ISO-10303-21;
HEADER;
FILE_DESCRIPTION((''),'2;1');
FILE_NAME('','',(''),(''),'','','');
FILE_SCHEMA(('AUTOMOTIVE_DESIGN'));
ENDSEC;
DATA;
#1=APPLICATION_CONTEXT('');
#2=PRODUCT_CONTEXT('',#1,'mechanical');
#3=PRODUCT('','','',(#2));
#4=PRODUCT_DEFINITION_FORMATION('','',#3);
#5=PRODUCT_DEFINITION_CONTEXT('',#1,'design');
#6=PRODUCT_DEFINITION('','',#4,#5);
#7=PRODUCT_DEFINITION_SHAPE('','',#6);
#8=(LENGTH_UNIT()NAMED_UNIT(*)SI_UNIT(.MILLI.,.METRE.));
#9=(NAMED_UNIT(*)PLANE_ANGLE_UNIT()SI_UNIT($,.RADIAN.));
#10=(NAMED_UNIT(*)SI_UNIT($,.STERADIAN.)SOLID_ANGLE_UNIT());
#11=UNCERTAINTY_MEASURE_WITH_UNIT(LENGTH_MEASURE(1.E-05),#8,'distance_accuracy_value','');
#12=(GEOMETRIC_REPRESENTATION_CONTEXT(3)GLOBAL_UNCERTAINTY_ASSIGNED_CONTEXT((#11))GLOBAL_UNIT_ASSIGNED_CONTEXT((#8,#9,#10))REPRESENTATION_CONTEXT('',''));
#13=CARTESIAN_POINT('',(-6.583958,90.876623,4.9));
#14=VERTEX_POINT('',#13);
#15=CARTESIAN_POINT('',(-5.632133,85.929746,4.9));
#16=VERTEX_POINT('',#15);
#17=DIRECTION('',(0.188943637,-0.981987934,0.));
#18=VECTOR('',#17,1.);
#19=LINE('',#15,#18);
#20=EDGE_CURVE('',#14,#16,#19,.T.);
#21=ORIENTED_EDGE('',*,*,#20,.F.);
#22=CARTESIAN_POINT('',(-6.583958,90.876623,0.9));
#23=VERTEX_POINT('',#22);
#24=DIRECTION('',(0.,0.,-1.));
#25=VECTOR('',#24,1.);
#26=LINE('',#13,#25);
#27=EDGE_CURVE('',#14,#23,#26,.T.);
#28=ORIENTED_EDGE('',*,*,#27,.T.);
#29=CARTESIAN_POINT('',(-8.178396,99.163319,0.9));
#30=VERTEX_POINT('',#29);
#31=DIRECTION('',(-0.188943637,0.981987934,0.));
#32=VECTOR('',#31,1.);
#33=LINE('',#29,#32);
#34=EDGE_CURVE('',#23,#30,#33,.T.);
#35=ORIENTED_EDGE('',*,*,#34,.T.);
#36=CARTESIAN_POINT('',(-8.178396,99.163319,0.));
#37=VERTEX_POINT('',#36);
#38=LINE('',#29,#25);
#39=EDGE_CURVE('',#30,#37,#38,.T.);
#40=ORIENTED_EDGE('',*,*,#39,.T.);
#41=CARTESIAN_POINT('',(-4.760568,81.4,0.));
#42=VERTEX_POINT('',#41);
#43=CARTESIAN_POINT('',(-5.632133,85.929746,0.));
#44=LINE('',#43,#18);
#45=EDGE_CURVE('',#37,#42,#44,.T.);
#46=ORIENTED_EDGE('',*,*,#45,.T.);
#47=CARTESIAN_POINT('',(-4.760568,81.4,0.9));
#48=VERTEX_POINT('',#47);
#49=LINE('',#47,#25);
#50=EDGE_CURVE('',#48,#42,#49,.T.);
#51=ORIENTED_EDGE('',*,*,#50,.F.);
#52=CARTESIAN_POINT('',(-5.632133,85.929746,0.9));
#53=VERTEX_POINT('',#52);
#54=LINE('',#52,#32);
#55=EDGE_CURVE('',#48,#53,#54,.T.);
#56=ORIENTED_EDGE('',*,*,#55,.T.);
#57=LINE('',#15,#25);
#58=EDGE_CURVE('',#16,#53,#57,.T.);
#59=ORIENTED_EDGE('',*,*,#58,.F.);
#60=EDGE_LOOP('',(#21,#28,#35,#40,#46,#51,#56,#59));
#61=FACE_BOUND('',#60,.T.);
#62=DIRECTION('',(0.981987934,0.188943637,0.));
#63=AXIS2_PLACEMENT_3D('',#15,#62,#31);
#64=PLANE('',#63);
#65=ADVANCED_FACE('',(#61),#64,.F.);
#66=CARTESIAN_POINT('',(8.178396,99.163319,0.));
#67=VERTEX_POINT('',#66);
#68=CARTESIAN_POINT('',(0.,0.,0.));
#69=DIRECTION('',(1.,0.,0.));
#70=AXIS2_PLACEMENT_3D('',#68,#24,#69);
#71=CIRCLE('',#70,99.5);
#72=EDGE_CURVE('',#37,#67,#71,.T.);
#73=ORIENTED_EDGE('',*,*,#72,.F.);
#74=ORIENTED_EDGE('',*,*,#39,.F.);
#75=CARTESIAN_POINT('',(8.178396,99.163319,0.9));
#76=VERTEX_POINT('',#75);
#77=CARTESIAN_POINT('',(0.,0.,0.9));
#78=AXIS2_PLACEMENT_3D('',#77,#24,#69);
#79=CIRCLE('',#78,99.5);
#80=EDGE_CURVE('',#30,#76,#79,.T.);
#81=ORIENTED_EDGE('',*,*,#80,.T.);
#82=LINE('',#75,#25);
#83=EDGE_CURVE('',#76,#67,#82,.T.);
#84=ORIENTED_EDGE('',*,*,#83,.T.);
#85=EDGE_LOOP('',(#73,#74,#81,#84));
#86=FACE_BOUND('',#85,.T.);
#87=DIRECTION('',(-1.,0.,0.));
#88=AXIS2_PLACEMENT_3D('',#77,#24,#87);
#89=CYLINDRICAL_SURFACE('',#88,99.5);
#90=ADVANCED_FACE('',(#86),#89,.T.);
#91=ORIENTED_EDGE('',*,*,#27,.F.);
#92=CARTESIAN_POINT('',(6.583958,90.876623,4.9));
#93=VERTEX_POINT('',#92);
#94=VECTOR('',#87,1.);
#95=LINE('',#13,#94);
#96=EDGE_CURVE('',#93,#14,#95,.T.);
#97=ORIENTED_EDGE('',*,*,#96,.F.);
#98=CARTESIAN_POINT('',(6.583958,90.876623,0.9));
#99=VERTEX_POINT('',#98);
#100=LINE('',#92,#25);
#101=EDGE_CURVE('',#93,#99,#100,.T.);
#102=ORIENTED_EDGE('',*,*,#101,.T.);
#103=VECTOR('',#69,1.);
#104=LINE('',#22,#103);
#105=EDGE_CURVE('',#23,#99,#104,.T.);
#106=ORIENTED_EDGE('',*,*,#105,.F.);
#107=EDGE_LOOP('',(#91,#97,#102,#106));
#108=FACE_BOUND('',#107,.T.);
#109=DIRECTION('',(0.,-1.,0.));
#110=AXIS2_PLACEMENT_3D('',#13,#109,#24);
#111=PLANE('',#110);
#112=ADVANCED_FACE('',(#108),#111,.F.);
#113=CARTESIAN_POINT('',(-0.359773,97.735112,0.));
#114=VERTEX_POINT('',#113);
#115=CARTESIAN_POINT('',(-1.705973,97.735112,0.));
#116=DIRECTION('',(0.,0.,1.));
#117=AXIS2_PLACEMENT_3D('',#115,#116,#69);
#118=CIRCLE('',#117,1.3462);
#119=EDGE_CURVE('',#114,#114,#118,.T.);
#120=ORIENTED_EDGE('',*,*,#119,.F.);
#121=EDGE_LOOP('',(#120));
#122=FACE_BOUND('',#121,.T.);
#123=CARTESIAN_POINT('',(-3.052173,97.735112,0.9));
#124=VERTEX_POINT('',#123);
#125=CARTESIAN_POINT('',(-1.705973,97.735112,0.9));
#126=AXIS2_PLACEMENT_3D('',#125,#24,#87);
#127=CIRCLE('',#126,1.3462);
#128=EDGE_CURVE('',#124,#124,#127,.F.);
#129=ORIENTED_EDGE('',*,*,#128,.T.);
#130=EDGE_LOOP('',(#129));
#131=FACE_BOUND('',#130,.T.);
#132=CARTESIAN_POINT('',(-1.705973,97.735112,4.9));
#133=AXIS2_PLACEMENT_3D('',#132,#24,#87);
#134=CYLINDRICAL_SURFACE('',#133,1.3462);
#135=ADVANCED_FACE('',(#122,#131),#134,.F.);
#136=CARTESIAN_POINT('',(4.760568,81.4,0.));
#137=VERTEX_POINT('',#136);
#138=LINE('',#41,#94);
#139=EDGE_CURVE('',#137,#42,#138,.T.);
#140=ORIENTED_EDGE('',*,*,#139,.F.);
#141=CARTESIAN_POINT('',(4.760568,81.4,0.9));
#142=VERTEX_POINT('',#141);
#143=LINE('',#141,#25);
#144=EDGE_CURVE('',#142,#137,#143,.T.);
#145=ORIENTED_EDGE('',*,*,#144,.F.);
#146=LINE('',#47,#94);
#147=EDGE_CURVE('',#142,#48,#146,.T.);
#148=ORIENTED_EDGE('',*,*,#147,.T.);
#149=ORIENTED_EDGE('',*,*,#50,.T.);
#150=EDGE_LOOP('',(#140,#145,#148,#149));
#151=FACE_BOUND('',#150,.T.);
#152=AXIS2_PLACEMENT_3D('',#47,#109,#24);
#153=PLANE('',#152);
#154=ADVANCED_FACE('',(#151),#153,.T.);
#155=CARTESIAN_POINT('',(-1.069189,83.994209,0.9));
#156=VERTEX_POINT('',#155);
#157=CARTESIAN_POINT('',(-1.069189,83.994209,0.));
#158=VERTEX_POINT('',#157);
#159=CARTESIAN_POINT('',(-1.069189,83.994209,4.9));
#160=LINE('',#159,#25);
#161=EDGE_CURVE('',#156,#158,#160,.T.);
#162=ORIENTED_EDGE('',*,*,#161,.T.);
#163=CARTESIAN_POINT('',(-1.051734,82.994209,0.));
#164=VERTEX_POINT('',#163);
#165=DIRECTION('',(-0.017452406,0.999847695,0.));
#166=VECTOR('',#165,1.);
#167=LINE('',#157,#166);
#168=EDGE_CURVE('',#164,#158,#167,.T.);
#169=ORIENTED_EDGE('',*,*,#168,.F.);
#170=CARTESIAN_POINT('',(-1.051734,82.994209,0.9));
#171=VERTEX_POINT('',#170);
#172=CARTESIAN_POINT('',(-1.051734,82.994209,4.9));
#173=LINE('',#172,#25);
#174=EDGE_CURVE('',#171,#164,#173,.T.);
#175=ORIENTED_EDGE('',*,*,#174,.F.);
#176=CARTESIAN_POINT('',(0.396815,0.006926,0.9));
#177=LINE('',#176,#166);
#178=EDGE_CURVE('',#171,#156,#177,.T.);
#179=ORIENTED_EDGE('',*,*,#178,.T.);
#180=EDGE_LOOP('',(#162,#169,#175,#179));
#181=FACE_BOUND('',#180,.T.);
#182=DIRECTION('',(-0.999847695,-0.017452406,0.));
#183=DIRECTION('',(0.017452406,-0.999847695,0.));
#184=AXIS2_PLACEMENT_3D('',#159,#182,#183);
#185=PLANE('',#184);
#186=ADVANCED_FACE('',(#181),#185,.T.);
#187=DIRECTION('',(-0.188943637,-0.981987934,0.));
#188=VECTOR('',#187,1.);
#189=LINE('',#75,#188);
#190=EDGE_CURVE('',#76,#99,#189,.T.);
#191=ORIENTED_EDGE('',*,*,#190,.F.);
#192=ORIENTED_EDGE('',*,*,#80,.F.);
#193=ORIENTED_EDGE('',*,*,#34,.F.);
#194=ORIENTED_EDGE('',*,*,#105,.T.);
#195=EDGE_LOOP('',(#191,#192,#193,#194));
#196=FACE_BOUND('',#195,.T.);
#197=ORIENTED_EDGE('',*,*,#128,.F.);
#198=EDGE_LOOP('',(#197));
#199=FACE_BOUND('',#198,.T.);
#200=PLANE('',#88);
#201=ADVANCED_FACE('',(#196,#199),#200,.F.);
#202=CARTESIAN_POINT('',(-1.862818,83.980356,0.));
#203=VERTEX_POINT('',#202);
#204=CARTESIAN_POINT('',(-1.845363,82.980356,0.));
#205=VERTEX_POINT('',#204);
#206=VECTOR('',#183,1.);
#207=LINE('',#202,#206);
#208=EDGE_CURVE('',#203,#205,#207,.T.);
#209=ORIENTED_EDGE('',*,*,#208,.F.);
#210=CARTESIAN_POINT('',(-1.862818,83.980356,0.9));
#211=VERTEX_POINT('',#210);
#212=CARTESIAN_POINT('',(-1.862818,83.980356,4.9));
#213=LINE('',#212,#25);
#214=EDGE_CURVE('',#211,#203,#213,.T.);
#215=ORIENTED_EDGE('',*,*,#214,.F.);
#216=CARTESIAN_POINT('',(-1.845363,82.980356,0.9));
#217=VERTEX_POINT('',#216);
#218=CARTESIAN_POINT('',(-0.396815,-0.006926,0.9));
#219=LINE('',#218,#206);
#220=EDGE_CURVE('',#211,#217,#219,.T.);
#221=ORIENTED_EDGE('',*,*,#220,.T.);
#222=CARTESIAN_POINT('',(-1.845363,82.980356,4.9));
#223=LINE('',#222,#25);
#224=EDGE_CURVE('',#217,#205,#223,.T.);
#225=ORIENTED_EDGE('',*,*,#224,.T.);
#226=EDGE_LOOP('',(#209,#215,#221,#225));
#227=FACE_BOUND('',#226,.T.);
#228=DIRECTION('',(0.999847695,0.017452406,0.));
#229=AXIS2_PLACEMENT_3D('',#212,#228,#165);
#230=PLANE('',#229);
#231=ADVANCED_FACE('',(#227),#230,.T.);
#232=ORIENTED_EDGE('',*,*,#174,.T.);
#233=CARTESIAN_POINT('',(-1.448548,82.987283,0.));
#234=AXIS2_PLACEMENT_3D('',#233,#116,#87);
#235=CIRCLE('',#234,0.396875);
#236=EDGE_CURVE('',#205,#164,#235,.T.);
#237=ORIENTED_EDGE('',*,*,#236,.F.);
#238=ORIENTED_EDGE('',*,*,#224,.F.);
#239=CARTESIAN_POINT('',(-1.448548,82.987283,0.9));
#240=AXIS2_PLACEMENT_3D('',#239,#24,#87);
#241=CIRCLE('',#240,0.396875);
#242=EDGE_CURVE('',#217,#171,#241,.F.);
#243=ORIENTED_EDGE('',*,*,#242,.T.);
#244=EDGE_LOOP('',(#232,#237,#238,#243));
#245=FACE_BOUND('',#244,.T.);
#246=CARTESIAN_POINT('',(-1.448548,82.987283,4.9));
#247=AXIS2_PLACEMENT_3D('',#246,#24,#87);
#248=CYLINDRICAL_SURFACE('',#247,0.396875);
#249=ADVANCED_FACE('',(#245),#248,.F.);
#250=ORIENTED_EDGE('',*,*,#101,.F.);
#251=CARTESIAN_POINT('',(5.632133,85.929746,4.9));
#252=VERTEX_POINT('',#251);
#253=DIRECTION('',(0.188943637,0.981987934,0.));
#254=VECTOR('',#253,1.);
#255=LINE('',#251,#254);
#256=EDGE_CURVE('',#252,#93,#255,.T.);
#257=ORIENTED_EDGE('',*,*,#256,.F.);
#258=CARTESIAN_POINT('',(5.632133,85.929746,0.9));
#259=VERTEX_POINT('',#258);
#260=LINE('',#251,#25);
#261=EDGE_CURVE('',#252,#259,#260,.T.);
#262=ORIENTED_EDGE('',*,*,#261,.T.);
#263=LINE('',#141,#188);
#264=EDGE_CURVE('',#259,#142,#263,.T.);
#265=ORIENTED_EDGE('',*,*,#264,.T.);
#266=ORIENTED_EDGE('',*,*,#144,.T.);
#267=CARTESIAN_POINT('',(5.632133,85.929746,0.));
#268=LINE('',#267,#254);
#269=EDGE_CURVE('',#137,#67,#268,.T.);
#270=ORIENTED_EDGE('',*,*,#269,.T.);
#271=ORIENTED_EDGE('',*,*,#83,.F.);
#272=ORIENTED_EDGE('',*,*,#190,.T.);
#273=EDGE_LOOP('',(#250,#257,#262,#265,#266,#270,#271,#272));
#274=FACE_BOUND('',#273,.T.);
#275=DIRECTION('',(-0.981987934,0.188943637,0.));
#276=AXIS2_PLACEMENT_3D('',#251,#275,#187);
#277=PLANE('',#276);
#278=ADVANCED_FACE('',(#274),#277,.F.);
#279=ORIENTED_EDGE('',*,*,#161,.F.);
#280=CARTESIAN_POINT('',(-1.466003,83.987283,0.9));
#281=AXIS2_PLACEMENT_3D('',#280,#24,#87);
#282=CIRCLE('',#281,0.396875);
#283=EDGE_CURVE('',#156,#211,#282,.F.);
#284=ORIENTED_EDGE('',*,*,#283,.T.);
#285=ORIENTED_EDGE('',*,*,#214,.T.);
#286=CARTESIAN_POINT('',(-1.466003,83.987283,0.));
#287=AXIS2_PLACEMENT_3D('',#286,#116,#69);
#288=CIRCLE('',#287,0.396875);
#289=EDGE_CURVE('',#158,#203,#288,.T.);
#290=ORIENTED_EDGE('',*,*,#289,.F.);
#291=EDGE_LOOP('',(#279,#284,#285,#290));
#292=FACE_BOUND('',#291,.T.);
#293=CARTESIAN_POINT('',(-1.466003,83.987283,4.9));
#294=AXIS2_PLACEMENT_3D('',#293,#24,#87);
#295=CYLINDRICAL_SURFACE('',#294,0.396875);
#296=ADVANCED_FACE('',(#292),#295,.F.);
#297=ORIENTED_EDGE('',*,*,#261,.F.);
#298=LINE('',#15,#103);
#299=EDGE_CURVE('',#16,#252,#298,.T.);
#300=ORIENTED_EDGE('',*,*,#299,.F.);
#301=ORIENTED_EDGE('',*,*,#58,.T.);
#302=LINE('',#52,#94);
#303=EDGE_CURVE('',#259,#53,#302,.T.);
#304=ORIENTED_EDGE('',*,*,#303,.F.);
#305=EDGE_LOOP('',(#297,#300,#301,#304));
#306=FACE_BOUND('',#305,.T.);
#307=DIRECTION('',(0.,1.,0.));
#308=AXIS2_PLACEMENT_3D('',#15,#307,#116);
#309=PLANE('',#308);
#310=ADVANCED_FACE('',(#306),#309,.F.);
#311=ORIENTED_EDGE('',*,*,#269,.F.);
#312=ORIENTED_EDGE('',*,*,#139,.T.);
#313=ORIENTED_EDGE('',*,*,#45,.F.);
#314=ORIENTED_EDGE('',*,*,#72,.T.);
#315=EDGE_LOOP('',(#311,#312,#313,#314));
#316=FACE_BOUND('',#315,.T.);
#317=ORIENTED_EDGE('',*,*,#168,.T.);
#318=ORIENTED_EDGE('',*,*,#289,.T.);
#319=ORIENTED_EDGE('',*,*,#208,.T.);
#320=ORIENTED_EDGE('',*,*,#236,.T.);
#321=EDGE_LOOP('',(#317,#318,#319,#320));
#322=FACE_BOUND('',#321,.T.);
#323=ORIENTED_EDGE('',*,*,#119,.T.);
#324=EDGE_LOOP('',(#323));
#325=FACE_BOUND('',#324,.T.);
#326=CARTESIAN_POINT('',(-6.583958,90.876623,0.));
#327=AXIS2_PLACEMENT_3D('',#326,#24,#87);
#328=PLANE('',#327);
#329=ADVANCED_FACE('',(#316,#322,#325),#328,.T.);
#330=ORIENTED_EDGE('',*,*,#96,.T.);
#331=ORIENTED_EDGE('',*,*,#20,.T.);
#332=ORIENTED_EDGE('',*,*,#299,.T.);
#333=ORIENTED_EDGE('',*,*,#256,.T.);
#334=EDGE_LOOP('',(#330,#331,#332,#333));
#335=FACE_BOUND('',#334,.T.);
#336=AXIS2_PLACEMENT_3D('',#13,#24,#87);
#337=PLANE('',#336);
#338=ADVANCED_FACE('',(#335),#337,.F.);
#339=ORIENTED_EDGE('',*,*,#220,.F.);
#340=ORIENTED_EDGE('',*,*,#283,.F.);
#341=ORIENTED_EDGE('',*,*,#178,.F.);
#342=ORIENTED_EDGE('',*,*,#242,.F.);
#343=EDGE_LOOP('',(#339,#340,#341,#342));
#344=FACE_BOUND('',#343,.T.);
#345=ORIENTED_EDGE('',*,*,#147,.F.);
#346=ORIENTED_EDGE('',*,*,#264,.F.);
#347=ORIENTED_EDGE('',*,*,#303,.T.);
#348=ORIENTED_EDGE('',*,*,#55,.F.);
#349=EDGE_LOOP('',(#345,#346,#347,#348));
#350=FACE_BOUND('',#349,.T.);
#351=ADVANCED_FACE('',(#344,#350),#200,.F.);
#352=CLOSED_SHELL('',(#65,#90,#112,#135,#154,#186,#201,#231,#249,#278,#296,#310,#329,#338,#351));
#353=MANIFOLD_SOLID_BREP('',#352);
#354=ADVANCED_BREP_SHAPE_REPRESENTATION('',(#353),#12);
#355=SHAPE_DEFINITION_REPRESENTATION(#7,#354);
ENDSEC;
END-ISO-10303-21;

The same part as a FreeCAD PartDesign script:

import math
import FreeCAD as App
import Part
import Sketcher
Q = App.Units.Quantity


def add_polygon(sketch, points):
    """Adds a closed chain of lines whose ends are joined by coincident constraints."""
    first, n = sketch.GeometryCount, len(points)
    for a, b in zip(points, points[1:] + points[:1]):
        sketch.addGeometry(Part.LineSegment(App.Vector(*a, 0), App.Vector(*b, 0)), False)
    for i in range(n):
        sketch.addConstraint(Sketcher.Constraint("Coincident", first + i, 2, first + (i + 1) % n, 1))

doc = App.newDocument("Part")
body = doc.addObject("PartDesign::Body", "Body")

# Sketch on XY plane
sketch1 = body.newObject("Sketcher::SketchObject", "Sketch")
sketch1.AttachmentSupport = (doc.getObject("XY_Plane"), [""])
sketch1.MapMode = "FlatFace"
add_polygon(sketch1, [(7, 91), (-7, 91), (-6, 86), (6, 86)])  # lines 0-3
sketch1.addConstraint([
    Sketcher.Constraint("Horizontal", 0),
    Sketcher.Constraint("Horizontal", 2),
    Sketcher.Constraint("Equal", 1, 3),
    Sketcher.Constraint("DistanceX", 0, 2, 0, 1, 13.167917),
    Sketcher.Constraint("DistanceX", 2, 1, 2, 2, 11.264266),
    Sketcher.Constraint("DistanceX", 0, 2, -1, 1, 6.583958),
    Sketcher.Constraint("Distance", 1, 5.037615),
    Sketcher.Constraint("DistanceY", -1, 1, 0, 2, 90.876623),
])
pad1 = body.newObject("PartDesign::Pad", "Pad")
pad1.Profile = sketch1
pad1.Length = 4.9

# Sketch on XY plane
sketch2 = body.newObject("Sketcher::SketchObject", "Sketch001")
sketch2.AttachmentSupport = (doc.getObject("XY_Plane"), [""])
sketch2.MapMode = "FlatFace"
sketch2.addGeometry([
    Part.LineSegment(App.Vector(-6.5, 90.6, 0), App.Vector(-8.2, 99.2, 0)),  # 0
    Part.ArcOfCircle(Part.Circle(App.Vector(0, 0, 0), App.Vector(0, 0, 1), 99.5), math.radians(85.29), math.radians(94.71)),  # 1
    Part.LineSegment(App.Vector(8.2, 99.2, 0), App.Vector(6.5, 90.6, 0)),  # 2
    Part.ArcOfCircle(Part.Circle(App.Vector(0, 0, 0), App.Vector(0, 0, 1), 90.9), math.radians(85.87), math.radians(94.13)),  # 3
    Part.LineSegment(App.Vector(-4.8, 81.4, 0), App.Vector(-5.6, 85.9, 0)),  # 4
    Part.ArcOfCircle(Part.Circle(App.Vector(0, 0, 0), App.Vector(0, 0, 1), 86.1), math.radians(86.25), math.radians(93.75)),  # 5
    Part.LineSegment(App.Vector(5.6, 85.9, 0), App.Vector(4.8, 81.4, 0)),  # 6
    Part.LineSegment(App.Vector(4.8, 81.4, 0), App.Vector(-4.8, 81.4, 0)),  # 7
], False)
sketch2.addConstraint([
    Sketcher.Constraint("Coincident", 0, 2, 1, 2),
    Sketcher.Constraint("Coincident", 1, 1, 2, 1),
    Sketcher.Constraint("Coincident", 2, 2, 3, 1),
    Sketcher.Constraint("Coincident", 3, 2, 0, 1),
    Sketcher.Constraint("Coincident", 4, 2, 5, 2),
    Sketcher.Constraint("Coincident", 5, 1, 6, 1),
    Sketcher.Constraint("Coincident", 6, 2, 7, 1),
    Sketcher.Constraint("Coincident", 7, 2, 4, 1),
    Sketcher.Constraint("Horizontal", 7),
    Sketcher.Constraint("Coincident", 1, 3, -1, 1),
    Sketcher.Constraint("Coincident", 3, 3, -1, 1),
    Sketcher.Constraint("Coincident", 5, 3, -1, 1),
    Sketcher.Constraint("Parallel", 0, 4),
    Sketcher.Constraint("Parallel", 2, 6),
    Sketcher.Constraint("Horizontal", 0, 2, 1, 1),
    Sketcher.Constraint("Horizontal", 2, 2, 3, 2),
    Sketcher.Constraint("Horizontal", 4, 2, 5, 1),
    Sketcher.Constraint("Radius", 1, 99.5),
    Sketcher.Constraint("DistanceY", -1, 1, 6, 2, 81.4),
    Sketcher.Constraint("Radius", 3, 90.876623),
    Sketcher.Constraint("Radius", 5, 86.114123),
    Sketcher.Constraint("DistanceX", 4, 2, 6, 2, 10.392701),
    Sketcher.Constraint("Distance", 0, 8.67855),
    Sketcher.Constraint("DistanceX", 7, 2, 7, 1, 9.521135),
])
pad2 = body.newObject("PartDesign::Pad", "Pad001")
pad2.Profile = sketch2
pad2.Length = 0.9

# Sketch on XY plane
sketch3 = body.newObject("Sketcher::SketchObject", "Sketch002")
sketch3.AttachmentSupport = (doc.getObject("XY_Plane"), [""])
sketch3.MapMode = "FlatFace"
sketch3.addGeometry([
    Part.Circle(App.Vector(-1.71, 97.74, 0), App.Vector(0, 0, 1), 1.35),  # 0
    Part.LineSegment(App.Vector(-1.05, 82.99, 0), App.Vector(-1.07, 83.99, 0)),  # 1
    Part.ArcOfCircle(Part.Circle(App.Vector(-1.47, 83.99, 0), App.Vector(0, 0, 1), 0.4), math.radians(1), math.radians(181)),  # 2
    Part.LineSegment(App.Vector(-1.86, 83.98, 0), App.Vector(-1.85, 82.98, 0)),  # 3
    Part.ArcOfCircle(Part.Circle(App.Vector(-1.45, 82.99, 0), App.Vector(0, 0, 1), 0.4), math.radians(-179), math.radians(1)),  # 4
], False)
sketch3.addConstraint([
    Sketcher.Constraint("Tangent", 1, 2, 2, 1),
    Sketcher.Constraint("Tangent", 2, 2, 3, 1),
    Sketcher.Constraint("Tangent", 3, 2, 4, 1),
    Sketcher.Constraint("Tangent", 4, 2, 1, 1),
    Sketcher.Constraint("Equal", 2, 4),
    Sketcher.Constraint("Angle", 1, Q("91 deg")),
    Sketcher.Constraint("DistanceY", 4, 3, 2, 3, 1.0),
    Sketcher.Constraint("Diameter", 0, 2.6924),
    Sketcher.Constraint("Radius", 2, 0.396875),
    Sketcher.Constraint("DistanceX", 4, 3, -1, 1, 1.448548),
    Sketcher.Constraint("DistanceY", -1, 1, 1, 2, 83.994209),
    Sketcher.Constraint("DistanceX", 0, 3, 2, 3, 0.239969),
    Sketcher.Constraint("DistanceY", 2, 3, 0, 3, 13.74783),
])
pocket1 = body.newObject("PartDesign::Pocket", "Pocket")
pocket1.Profile = sketch3
pocket1.Type = "ThroughAll"
pocket1.Reversed = True

doc.recompute()
